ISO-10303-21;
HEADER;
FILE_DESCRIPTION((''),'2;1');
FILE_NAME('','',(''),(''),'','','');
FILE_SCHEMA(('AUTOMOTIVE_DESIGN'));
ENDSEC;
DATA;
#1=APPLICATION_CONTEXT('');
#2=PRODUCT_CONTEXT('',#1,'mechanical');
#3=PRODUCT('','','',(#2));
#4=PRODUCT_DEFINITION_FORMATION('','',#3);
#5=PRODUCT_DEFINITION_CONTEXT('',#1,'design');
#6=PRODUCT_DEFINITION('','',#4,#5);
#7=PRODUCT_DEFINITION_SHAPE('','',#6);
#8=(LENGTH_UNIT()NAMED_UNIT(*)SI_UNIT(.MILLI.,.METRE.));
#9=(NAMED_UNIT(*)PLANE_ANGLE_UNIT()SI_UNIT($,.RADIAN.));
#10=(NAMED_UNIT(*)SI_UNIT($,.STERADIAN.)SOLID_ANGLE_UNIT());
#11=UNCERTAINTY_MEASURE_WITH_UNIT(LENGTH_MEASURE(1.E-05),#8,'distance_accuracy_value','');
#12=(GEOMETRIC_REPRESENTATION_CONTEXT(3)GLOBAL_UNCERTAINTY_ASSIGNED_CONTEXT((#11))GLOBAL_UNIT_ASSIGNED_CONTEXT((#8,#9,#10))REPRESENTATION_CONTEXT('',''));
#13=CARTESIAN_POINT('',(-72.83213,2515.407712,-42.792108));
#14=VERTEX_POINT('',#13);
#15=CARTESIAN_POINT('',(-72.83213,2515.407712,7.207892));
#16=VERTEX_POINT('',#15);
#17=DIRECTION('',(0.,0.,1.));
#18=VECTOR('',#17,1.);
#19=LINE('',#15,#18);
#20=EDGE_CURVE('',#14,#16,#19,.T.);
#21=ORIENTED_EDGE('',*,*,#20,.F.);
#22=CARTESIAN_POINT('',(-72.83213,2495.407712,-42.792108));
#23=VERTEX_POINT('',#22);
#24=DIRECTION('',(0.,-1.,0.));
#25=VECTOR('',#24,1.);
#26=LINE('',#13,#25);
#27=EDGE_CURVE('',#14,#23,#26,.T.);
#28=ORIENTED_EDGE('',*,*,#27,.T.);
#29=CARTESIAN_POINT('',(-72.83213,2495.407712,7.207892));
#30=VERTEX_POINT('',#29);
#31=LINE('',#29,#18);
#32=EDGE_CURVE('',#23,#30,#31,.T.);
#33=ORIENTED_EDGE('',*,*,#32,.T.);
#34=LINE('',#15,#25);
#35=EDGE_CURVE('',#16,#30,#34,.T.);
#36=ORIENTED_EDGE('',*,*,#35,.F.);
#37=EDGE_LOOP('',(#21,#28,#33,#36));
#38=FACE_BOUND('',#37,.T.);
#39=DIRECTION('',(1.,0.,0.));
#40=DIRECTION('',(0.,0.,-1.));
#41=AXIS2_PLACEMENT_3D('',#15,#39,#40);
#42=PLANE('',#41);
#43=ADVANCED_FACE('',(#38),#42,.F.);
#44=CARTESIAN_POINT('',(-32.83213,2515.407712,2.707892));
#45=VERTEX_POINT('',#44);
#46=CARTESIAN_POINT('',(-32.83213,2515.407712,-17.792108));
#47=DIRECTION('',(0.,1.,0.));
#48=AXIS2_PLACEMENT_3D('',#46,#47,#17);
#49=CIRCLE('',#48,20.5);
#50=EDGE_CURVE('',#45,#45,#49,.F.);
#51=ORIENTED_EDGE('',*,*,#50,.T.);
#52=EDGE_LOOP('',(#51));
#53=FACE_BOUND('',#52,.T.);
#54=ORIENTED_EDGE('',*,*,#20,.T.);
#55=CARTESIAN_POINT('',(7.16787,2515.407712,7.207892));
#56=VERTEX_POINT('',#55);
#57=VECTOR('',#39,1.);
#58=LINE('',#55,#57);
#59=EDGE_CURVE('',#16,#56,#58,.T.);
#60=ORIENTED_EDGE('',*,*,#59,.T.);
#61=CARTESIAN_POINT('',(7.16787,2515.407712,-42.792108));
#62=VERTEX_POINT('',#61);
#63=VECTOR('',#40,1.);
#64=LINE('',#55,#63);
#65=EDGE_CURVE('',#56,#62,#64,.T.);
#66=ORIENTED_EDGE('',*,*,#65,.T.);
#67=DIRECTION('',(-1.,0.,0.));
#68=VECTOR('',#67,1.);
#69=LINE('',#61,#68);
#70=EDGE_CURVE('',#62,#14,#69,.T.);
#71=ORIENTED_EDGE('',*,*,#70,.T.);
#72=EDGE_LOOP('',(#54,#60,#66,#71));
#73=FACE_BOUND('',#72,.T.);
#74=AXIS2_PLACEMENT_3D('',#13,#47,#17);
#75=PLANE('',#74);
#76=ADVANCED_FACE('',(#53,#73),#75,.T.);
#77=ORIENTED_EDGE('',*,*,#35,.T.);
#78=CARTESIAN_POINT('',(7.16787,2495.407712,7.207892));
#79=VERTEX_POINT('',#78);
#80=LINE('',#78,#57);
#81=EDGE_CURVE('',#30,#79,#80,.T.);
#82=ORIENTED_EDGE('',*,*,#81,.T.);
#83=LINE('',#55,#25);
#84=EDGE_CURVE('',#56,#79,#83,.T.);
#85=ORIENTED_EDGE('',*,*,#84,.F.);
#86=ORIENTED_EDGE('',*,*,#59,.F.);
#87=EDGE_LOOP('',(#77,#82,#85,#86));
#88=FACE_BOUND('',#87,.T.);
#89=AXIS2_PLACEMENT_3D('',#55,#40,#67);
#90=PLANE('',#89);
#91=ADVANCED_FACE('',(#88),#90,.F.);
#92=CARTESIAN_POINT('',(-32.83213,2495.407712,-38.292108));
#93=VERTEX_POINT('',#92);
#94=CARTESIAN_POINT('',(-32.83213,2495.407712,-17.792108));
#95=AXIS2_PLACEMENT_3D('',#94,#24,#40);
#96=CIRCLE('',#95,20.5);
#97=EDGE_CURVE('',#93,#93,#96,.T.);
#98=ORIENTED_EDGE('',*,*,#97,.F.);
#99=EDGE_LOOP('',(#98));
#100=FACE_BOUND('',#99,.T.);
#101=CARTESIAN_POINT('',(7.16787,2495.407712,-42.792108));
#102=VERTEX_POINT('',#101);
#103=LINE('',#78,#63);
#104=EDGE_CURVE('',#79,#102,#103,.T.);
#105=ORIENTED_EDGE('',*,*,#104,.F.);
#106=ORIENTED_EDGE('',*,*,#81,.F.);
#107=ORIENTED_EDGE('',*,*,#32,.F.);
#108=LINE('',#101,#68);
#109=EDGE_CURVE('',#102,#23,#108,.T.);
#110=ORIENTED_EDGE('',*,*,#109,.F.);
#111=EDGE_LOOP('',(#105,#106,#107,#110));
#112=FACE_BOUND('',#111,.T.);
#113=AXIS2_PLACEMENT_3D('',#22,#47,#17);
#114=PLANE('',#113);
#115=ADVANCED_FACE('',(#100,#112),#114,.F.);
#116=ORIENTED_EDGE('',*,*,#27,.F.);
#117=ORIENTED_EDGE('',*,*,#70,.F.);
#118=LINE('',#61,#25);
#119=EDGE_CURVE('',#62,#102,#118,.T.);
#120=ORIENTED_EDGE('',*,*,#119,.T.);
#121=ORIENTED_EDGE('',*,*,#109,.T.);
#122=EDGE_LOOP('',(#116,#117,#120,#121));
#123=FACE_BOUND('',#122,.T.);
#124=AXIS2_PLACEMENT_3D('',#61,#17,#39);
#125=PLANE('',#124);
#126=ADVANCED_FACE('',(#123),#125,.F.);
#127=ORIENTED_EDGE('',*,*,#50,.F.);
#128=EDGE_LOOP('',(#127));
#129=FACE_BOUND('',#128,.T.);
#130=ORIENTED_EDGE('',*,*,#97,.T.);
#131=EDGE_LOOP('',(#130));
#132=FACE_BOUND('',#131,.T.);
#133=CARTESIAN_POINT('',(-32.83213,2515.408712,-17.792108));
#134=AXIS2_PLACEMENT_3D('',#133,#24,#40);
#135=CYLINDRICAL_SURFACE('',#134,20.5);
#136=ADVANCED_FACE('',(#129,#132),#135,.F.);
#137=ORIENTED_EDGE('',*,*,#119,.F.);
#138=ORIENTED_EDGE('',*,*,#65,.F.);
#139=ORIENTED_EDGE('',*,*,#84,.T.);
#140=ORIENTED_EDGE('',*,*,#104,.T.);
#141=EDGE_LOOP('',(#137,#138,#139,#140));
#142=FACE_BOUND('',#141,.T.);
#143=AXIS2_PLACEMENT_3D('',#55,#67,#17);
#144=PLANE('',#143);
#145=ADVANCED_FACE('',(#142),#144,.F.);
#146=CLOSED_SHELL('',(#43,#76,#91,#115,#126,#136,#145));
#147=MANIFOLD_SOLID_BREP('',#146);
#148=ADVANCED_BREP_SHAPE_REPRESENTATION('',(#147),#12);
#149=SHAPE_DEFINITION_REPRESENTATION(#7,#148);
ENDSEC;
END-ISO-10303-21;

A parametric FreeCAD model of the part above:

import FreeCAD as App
import Part
import Sketcher

V = App.Vector
Q = App.Units.Quantity

doc = App.newDocument("Part")
body = doc.addObject("PartDesign::Body", "Body")

sketch1 = body.newObject("Sketcher::SketchObject", "Sketch")
sketch1.AttachmentSupport = (doc.getObject("XZ_Plane"), [""])
sketch1.MapMode = "FlatFace"
sketch1.AttachmentOffset = App.Placement(V(0, 0, -2495.407712), App.Rotation())
sketch1.addGeometry([
    Part.LineSegment(V(-72.83213, -42.792108, 0), V(-72.83213, 7.207892, 0)),
    Part.LineSegment(V(-72.83213, 7.207892, 0), V(7.16787, 7.207892, 0)),
    Part.LineSegment(V(7.16787, 7.207892, 0), V(7.16787, -42.792108, 0)),
    Part.LineSegment(V(7.16787, -42.792108, 0), V(-72.83213, -42.792108, 0)),
], False)
sketch1.addConstraint([
    Sketcher.Constraint("Coincident", 0, 2, 1, 1),
    Sketcher.Constraint("Coincident", 1, 2, 2, 1),
    Sketcher.Constraint("Coincident", 2, 2, 3, 1),
    Sketcher.Constraint("Coincident", 3, 2, 0, 1),
    Sketcher.Constraint("Vertical", 0),
    Sketcher.Constraint("Horizontal", 1),
    Sketcher.Constraint("Vertical", 2),
    Sketcher.Constraint("Horizontal", 3),
    Sketcher.Constraint("DistanceX", 1, 1, 1, 2, Q("80 mm")),
    Sketcher.Constraint("DistanceY", 0, 1, 0, 2, Q("50 mm")),
    Sketcher.Constraint("DistanceX", 0, 2, -1, 1, Q("72.83213 mm")),
    Sketcher.Constraint("DistanceY", -1, 1, 0, 2, Q("7.207892 mm")),
])
pad1 = body.newObject("PartDesign::Pad", "Pad")
pad1.Profile = sketch1
pad1.Length = 20
pad1.Reversed = True

sketch2 = body.newObject("Sketcher::SketchObject", "Sketch001")
sketch2.AttachmentSupport = (doc.getObject("XZ_Plane"), [""])
sketch2.MapMode = "FlatFace"
sketch2.AttachmentOffset = App.Placement(V(0, 0, -2495.407712), App.Rotation())
sketch2.addGeometry(Part.Circle(V(-32.83213, -17.792108, 0), V(0, 0, 1), 20.5), False)
sketch2.addConstraint([
    Sketcher.Constraint("Diameter", 0, Q("41 mm")),
    Sketcher.Constraint("DistanceX", 0, 3, -1, 1, Q("32.83213 mm")),
    Sketcher.Constraint("DistanceY", 0, 3, -1, 1, Q("17.792108 mm")),
])
pocket1 = body.newObject("PartDesign::Pocket", "Pocket")
pocket1.Profile = sketch2
pocket1.Type = "UpToFirst"

doc.recompute()
